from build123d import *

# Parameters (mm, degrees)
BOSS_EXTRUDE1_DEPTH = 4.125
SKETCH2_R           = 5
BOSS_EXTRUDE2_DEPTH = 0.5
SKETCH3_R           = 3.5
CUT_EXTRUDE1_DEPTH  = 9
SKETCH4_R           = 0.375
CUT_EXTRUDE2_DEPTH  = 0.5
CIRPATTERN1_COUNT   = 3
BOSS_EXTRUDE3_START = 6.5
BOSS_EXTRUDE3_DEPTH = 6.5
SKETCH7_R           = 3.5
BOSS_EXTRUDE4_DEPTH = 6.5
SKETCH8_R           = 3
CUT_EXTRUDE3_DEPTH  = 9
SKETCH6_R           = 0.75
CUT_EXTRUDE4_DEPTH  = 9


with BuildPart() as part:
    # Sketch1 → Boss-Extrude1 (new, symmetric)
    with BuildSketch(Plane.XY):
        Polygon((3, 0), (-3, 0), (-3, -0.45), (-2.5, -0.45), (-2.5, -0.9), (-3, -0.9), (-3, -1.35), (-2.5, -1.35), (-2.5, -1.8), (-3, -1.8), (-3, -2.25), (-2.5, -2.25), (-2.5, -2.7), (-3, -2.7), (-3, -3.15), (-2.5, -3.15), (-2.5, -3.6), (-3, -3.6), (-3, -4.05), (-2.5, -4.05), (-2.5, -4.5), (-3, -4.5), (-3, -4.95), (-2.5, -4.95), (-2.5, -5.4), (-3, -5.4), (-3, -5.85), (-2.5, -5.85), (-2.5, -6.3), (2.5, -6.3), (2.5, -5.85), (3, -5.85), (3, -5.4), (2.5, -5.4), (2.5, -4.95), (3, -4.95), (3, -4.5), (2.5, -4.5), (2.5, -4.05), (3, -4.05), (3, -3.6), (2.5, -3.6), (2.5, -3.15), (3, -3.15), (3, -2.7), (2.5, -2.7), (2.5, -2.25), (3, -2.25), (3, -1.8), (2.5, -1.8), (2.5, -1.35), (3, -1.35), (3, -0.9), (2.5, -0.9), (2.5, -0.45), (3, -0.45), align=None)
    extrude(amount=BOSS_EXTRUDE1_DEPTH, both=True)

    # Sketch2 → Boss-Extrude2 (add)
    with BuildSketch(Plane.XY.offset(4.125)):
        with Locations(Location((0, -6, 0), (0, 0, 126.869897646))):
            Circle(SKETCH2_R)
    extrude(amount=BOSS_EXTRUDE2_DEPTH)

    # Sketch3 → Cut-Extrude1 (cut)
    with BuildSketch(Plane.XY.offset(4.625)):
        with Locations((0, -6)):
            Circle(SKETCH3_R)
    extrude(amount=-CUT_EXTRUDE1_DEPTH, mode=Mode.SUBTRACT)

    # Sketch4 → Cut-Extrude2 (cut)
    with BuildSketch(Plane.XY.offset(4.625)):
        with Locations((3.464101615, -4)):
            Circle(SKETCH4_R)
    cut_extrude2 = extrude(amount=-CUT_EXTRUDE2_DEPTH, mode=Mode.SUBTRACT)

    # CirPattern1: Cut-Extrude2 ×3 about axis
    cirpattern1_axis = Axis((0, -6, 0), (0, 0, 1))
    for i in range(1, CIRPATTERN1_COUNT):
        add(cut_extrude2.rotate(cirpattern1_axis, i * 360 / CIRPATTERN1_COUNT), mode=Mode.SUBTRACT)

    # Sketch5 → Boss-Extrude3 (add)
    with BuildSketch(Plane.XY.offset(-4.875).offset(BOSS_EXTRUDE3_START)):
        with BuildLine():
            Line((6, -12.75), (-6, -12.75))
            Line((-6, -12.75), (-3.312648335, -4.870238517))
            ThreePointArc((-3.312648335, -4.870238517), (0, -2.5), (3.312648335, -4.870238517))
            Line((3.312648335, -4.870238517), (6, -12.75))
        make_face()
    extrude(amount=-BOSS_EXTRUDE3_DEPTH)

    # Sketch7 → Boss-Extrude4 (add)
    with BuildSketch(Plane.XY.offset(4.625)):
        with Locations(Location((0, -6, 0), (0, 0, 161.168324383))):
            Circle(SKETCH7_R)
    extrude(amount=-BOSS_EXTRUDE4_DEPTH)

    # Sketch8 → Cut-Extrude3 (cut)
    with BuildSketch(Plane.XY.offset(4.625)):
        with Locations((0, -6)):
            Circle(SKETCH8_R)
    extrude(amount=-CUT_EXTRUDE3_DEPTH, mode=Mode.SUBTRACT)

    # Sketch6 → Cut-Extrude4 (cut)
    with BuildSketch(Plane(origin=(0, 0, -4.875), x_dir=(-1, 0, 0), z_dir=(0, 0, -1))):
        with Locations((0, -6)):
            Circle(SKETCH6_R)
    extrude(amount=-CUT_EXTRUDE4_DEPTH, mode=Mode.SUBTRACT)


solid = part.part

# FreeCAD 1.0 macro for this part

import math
import FreeCAD as App
import Part
import Sketcher


def add_polygon(sketch, points):
    """Adds a closed chain of lines whose ends are joined by coincident constraints."""
    first, n = sketch.GeometryCount, len(points)
    for a, b in zip(points, points[1:] + points[:1]):
        sketch.addGeometry(Part.LineSegment(App.Vector(*a, 0), App.Vector(*b, 0)), False)
    for i in range(n):
        sketch.addConstraint(Sketcher.Constraint("Coincident", first + i, 2, first + (i + 1) % n, 1))

doc = App.newDocument("Part")
body = doc.addObject("PartDesign::Body", "Body")

# Sketch on XY plane
sketch1 = body.newObject("Sketcher::SketchObject", "Sketch")
sketch1.AttachmentSupport = (doc.getObject("XY_Plane"), [""])
sketch1.MapMode = "FlatFace"
add_polygon(sketch1, [(3, 0), (-3, 0), (-3, -0.45), (-2.5, -0.45), (-2.5, -0.9), (-3, -0.9), (-3, -1.35), (-2.5, -1.35), (-2.5, -1.8), (-3, -1.8), (-3, -2.25), (-2.5, -2.25), (-2.5, -2.7), (-3, -2.7), (-3, -3.15), (-2.5, -3.15), (-2.5, -3.6), (-3, -3.6), (-3, -4.05), (-2.5, -4.05), (-2.5, -4.5), (-3, -4.5), (-3, -4.95), (-2.5, -4.95), (-2.5, -5.4), (-3, -5.4), (-3, -5.85), (-2.5, -5.85), (-2.5, -6.3), (2.5, -6.3), (2.5, -5.85), (3, -5.85), (3, -5.4), (2.5, -5.4), (2.5, -4.95), (3, -4.95), (3, -4.5), (2.5, -4.5), (2.5, -4.05), (3, -4.05), (3, -3.6), (2.5, -3.6), (2.5, -3.15), (3, -3.15), (3, -2.7), (2.5, -2.7), (2.5, -2.25), (3, -2.25), (3, -1.8), (2.5, -1.8), (2.5, -1.35), (3, -1.35), (3, -0.9), (2.5, -0.9), (2.5, -0.45), (3, -0.45)])  # lines 0-55
sketch1.addConstraint([
    Sketcher.Constraint("Horizontal", 0),
    Sketcher.Constraint("Vertical", 1),
    Sketcher.Constraint("Horizontal", 2),
    Sketcher.Constraint("Vertical", 3),
    Sketcher.Constraint("Horizontal", 4),
    Sketcher.Constraint("Vertical", 5),
    Sketcher.Constraint("Horizontal", 6),
    Sketcher.Constraint("Vertical", 7),
    Sketcher.Constraint("Horizontal", 8),
    Sketcher.Constraint("Vertical", 9),
    Sketcher.Constraint("Horizontal", 10),
    Sketcher.Constraint("Vertical", 11),
    Sketcher.Constraint("Horizontal", 12),
    Sketcher.Constraint("Vertical", 13),
    Sketcher.Constraint("Horizontal", 14),
    Sketcher.Constraint("Vertical", 15),
    Sketcher.Constraint("Horizontal", 16),
    Sketcher.Constraint("Vertical", 17),
    Sketcher.Constraint("Horizontal", 18),
    Sketcher.Constraint("Vertical", 19),
    Sketcher.Constraint("Horizontal", 20),
    Sketcher.Constraint("Vertical", 21),
    Sketcher.Constraint("Horizontal", 22),
    Sketcher.Constraint("Vertical", 23),
    Sketcher.Constraint("Horizontal", 24),
    Sketcher.Constraint("Vertical", 25),
    Sketcher.Constraint("Horizontal", 26),
    Sketcher.Constraint("Vertical", 27),
    Sketcher.Constraint("Horizontal", 28),
    Sketcher.Constraint("Vertical", 29),
    Sketcher.Constraint("Horizontal", 30),
    Sketcher.Constraint("Vertical", 31),
    Sketcher.Constraint("Horizontal", 32),
    Sketcher.Constraint("Vertical", 33),
    Sketcher.Constraint("Horizontal", 34),
    Sketcher.Constraint("Vertical", 35),
    Sketcher.Constraint("Horizontal", 36),
    Sketcher.Constraint("Vertical", 37),
    Sketcher.Constraint("Horizontal", 38),
    Sketcher.Constraint("Vertical", 39),
    Sketcher.Constraint("Horizontal", 40),
    Sketcher.Constraint("Vertical", 41),
    Sketcher.Constraint("Horizontal", 42),
    Sketcher.Constraint("Vertical", 43),
    Sketcher.Constraint("Horizontal", 44),
    Sketcher.Constraint("Vertical", 45),
    Sketcher.Constraint("Horizontal", 46),
    Sketcher.Constraint("Vertical", 47),
    Sketcher.Constraint("Horizontal", 48),
    Sketcher.Constraint("Vertical", 49),
    Sketcher.Constraint("Horizontal", 50),
    Sketcher.Constraint("Vertical", 51),
    Sketcher.Constraint("Horizontal", 52),
    Sketcher.Constraint("Vertical", 53),
    Sketcher.Constraint("Horizontal", 54),
    Sketcher.Constraint("Vertical", 55),
    Sketcher.Constraint("Symmetric", 0, 2, 55, 2, -1, 1),
    Sketcher.Constraint("Symmetric", 26, 2, 29, 2, -2),
    Sketcher.Constraint("Symmetric", 24, 2, 31, 2, -2),
    Sketcher.Constraint("Symmetric", 22, 2, 33, 2, -2),
    Sketcher.Constraint("Symmetric", 20, 2, 35, 2, -2),
    Sketcher.Constraint("Symmetric", 18, 2, 37, 2, -2),
    Sketcher.Constraint("Symmetric", 16, 2, 39, 2, -2),
    Sketcher.Constraint("Symmetric", 14, 2, 41, 2, -2),
    Sketcher.Constraint("Symmetric", 12, 2, 43, 2, -2),
    Sketcher.Constraint("Symmetric", 10, 2, 45, 2, -2),
    Sketcher.Constraint("Symmetric", 8, 2, 47, 2, -2),
    Sketcher.Constraint("Symmetric", 6, 2, 49, 2, -2),
    Sketcher.Constraint("Symmetric", 4, 2, 51, 2, -2),
    Sketcher.Constraint("Symmetric", 2, 2, 53, 2, -2),
    Sketcher.Constraint("Vertical", 1, 2, 4, 2),
    Sketcher.Constraint("Vertical", 3, 2, 6, 2),
    Sketcher.Constraint("Vertical", 5, 2, 8, 2),
    Sketcher.Constraint("Vertical", 7, 2, 10, 2),
    Sketcher.Constraint("Vertical", 9, 2, 12, 2),
    Sketcher.Constraint("Vertical", 11, 2, 14, 2),
    Sketcher.Constraint("Vertical", 13, 2, 16, 2),
    Sketcher.Constraint("Vertical", 15, 2, 18, 2),
    Sketcher.Constraint("Vertical", 17, 2, 20, 2),
    Sketcher.Constraint("Vertical", 19, 2, 22, 2),
    Sketcher.Constraint("Vertical", 21, 2, 24, 2),
    Sketcher.Constraint("Vertical", 23, 2, 26, 2),
    Sketcher.Constraint("Equal", 1, 3),
    Sketcher.Constraint("Equal", 3, 5),
    Sketcher.Constraint("Equal", 5, 7),
    Sketcher.Constraint("Equal", 7, 9),
    Sketcher.Constraint("Equal", 9, 11),
    Sketcher.Constraint("Equal", 11, 13),
    Sketcher.Constraint("Equal", 13, 15),
    Sketcher.Constraint("Equal", 15, 17),
    Sketcher.Constraint("Equal", 17, 19),
    Sketcher.Constraint("Equal", 19, 21),
    Sketcher.Constraint("Equal", 21, 23),
    Sketcher.Constraint("Equal", 23, 25),
    Sketcher.Constraint("Equal", 25, 27),
    Sketcher.Constraint("DistanceX", 0, 2, 0, 1, 6.0),
    Sketcher.Constraint("DistanceX", 28, 1, 28, 2, 5.0),
    Sketcher.Constraint("DistanceY", 1, 2, 1, 1, 0.45),
])
pad1 = body.newObject("PartDesign::Pad", "Pad")
pad1.Profile = sketch1
pad1.Length = 8.25
pad1.Midplane = True

# Sketch on XY plane
sketch2 = body.newObject("Sketcher::SketchObject", "Sketch001")
sketch2.AttachmentSupport = (doc.getObject("XY_Plane"), [""])
sketch2.MapMode = "FlatFace"
sketch2.AttachmentOffset = App.Placement(App.Vector(0, 0, 4.125), App.Rotation())
sketch2.addGeometry(Part.Circle(App.Vector(0, -6, 0), App.Vector(0, 0, 1), 5), False)
sketch2.addConstraint([
    Sketcher.Constraint("PointOnObject", 0, 3, -2),
    Sketcher.Constraint("Diameter", 0, 10.0),
    Sketcher.Constraint("DistanceY", 0, 3, -1, 1, 6.0),
])
pad2 = body.newObject("PartDesign::Pad", "Pad001")
pad2.Profile = sketch2
pad2.Length = 0.5

# Sketch on XY plane
sketch3 = body.newObject("Sketcher::SketchObject", "Sketch002")
sketch3.AttachmentSupport = (doc.getObject("XY_Plane"), [""])
sketch3.MapMode = "FlatFace"
sketch3.AttachmentOffset = App.Placement(App.Vector(0, 0, 4.625), App.Rotation())
sketch3.addGeometry(Part.Circle(App.Vector(0, -6, 0), App.Vector(0, 0, 1), 3.5), False)
sketch3.addConstraint([
    Sketcher.Constraint("PointOnObject", 0, 3, -2),
    Sketcher.Constraint("Diameter", 0, 7.0),
    Sketcher.Constraint("DistanceY", 0, 3, -1, 1, 6.0),
])
pocket1 = body.newObject("PartDesign::Pocket", "Pocket")
pocket1.Profile = sketch3
pocket1.Length = 9

# Sketch on XY plane
sketch4 = body.newObject("Sketcher::SketchObject", "Sketch003")
sketch4.AttachmentSupport = (doc.getObject("XY_Plane"), [""])
sketch4.MapMode = "FlatFace"
sketch4.AttachmentOffset = App.Placement(App.Vector(0, 0, 4.625), App.Rotation())
sketch4.addGeometry(Part.Circle(App.Vector(3.464102, -4, 0), App.Vector(0, 0, 1), 0.375), False)
sketch4.addConstraint([
    Sketcher.Constraint("Diameter", 0, 0.75),
    Sketcher.Constraint("DistanceY", 0, 3, -1, 1, 4.0),
    Sketcher.Constraint("DistanceX", -1, 1, 0, 3, 3.464102),
])
pocket2 = body.newObject("PartDesign::Pocket", "Pocket001")
pocket2.Profile = sketch4
pocket2.Length = 0.5
doc.recompute()

datumline = body.newObject("PartDesign::Line", "DatumLine")
datumline.Placement = App.Placement(App.Vector(0, -6, 0), App.Rotation(App.Vector(0, 0, 1), App.Vector(0, 0, 1)))
polarpattern = body.newObject("PartDesign::PolarPattern", "PolarPattern")
polarpattern.Originals = [pocket2]
polarpattern.Axis = (datumline, [""])
polarpattern.Angle = 360
polarpattern.Occurrences = 3
body.Tip = polarpattern

# Sketch on XY plane
sketch5 = body.newObject("Sketcher::SketchObject", "Sketch004")
sketch5.AttachmentSupport = (doc.getObject("XY_Plane"), [""])
sketch5.MapMode = "FlatFace"
sketch5.AttachmentOffset = App.Placement(App.Vector(0, 0, 1.625), App.Rotation())
sketch5.addGeometry([
    Part.LineSegment(App.Vector(-6, -12.75, 0), App.Vector(6, -12.75, 0)),
    Part.LineSegment(App.Vector(6, -12.75, 0), App.Vector(3.312648, -4.870239, 0)),
    Part.ArcOfCircle(Part.Circle(App.Vector(0, -6, 0), App.Vector(0, 0, 1), 3.5), math.radians(18.831676), math.radians(161.168324)),
    Part.LineSegment(App.Vector(-3.312648, -4.870239, 0), App.Vector(-6, -12.75, 0)),
], False)
sketch5.addConstraint([
    Sketcher.Constraint("Coincident", 0, 2, 1, 1),
    Sketcher.Constraint("Tangent", 1, 2, 2, 1),
    Sketcher.Constraint("Tangent", 2, 2, 3, 1),
    Sketcher.Constraint("Coincident", 3, 2, 0, 1),
    Sketcher.Constraint("Horizontal", 0),
    Sketcher.Constraint("Symmetric", 1, 2, 2, 2, -2),
    Sketcher.Constraint("Radius", 2, 3.5),
    Sketcher.Constraint("DistanceX", 0, 1, 0, 2, 12.0),
    Sketcher.Constraint("DistanceY", 2, 3, -1, 1, 6.0),
    Sketcher.Constraint("DistanceY", 0, 2, -1, 1, 12.75),
])
pad3 = body.newObject("PartDesign::Pad", "Pad002")
pad3.Profile = sketch5
pad3.Length = 6.5
pad3.Reversed = True

# Sketch on XY plane
sketch6 = body.newObject("Sketcher::SketchObject", "Sketch005")
sketch6.AttachmentSupport = (doc.getObject("XY_Plane"), [""])
sketch6.MapMode = "FlatFace"
sketch6.AttachmentOffset = App.Placement(App.Vector(0, 0, 4.625), App.Rotation())
sketch6.addGeometry(Part.Circle(App.Vector(0, -6, 0), App.Vector(0, 0, 1), 3.5), False)
sketch6.addConstraint([
    Sketcher.Constraint("PointOnObject", 0, 3, -2),
    Sketcher.Constraint("Diameter", 0, 7.0),
    Sketcher.Constraint("DistanceY", 0, 3, -1, 1, 6.0),
])
pad4 = body.newObject("PartDesign::Pad", "Pad003")
pad4.Profile = sketch6
pad4.Length = 6.5
pad4.Reversed = True

# Sketch on XY plane
sketch7 = body.newObject("Sketcher::SketchObject", "Sketch006")
sketch7.AttachmentSupport = (doc.getObject("XY_Plane"), [""])
sketch7.MapMode = "FlatFace"
sketch7.AttachmentOffset = App.Placement(App.Vector(0, 0, 4.625), App.Rotation())
sketch7.addGeometry(Part.Circle(App.Vector(0, -6, 0), App.Vector(0, 0, 1), 3), False)
sketch7.addConstraint([
    Sketcher.Constraint("PointOnObject", 0, 3, -2),
    Sketcher.Constraint("Diameter", 0, 6.0),
    Sketcher.Constraint("DistanceY", 0, 3, -1, 1, 6.0),
])
pocket3 = body.newObject("PartDesign::Pocket", "Pocket002")
pocket3.Profile = sketch7
pocket3.Length = 9

# Sketch on XY plane
sketch8 = body.newObject("Sketcher::SketchObject", "Sketch007")
sketch8.AttachmentSupport = (doc.getObject("XY_Plane"), [""])
sketch8.MapMode = "FlatFace"
sketch8.AttachmentOffset = App.Placement(App.Vector(0, 0, -4.875), App.Rotation())
sketch8.addGeometry(Part.Circle(App.Vector(0, -6, 0), App.Vector(0, 0, 1), 0.75), False)
sketch8.addConstraint([
    Sketcher.Constraint("PointOnObject", 0, 3, -2),
    Sketcher.Constraint("Diameter", 0, 1.5),
    Sketcher.Constraint("DistanceY", 0, 3, -1, 1, 6.0),
])
pocket4 = body.newObject("PartDesign::Pocket", "Pocket003")
pocket4.Profile = sketch8
pocket4.Length = 9
pocket4.Reversed = True

doc.recompute()
